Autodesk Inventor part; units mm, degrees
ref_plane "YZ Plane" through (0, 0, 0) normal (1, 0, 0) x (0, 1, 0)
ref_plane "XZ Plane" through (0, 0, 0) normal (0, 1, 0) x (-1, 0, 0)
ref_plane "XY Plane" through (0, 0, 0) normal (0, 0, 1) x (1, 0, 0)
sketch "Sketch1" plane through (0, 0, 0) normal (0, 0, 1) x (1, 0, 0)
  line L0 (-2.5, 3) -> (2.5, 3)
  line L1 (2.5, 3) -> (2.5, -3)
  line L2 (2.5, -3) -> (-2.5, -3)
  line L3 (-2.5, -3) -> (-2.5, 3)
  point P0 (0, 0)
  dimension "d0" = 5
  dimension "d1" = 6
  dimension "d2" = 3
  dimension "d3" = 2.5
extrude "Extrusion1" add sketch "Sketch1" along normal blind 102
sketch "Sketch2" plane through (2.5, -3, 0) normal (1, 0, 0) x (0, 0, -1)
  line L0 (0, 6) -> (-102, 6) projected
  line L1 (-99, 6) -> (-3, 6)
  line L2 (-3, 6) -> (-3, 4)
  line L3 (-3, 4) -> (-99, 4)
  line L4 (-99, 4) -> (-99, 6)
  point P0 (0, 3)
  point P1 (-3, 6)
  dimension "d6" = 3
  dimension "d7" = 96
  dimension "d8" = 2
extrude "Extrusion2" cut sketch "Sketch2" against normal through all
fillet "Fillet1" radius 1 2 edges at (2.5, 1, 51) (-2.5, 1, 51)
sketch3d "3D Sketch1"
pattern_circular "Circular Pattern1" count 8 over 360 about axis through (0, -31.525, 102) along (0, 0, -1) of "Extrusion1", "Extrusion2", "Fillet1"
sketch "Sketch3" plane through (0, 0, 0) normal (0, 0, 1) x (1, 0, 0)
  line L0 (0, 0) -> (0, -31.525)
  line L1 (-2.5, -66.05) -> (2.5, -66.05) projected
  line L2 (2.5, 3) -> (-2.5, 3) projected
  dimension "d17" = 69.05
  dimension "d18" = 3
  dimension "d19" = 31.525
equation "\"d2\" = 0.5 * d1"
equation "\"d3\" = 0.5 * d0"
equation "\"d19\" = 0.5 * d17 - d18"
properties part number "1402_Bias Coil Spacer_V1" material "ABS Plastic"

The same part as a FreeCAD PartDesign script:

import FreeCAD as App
import Part
import Sketcher

V = App.Vector


def edges_at(feature, points):
    """Names of the edges that pass closest to the given points."""
    edges = feature.Shape.Edges
    near = lambda p: min(range(len(edges)), key=lambda i: edges[i].distToShape(Part.Vertex(*p))[0])
    return sorted({f"Edge{near(p) + 1}" for p in points})

doc = App.newDocument("Part")
body = doc.addObject("PartDesign::Body", "Body")
body.AllowCompound = True

sketch1 = body.newObject("Sketcher::SketchObject", "Sketch")
sketch1.AttachmentSupport = (doc.getObject("XY_Plane"), [""])
sketch1.MapMode = "FlatFace"
sketch1.addGeometry([
    Part.LineSegment(V(2, 3, 0), V(-2, 3, 0)),
    Part.LineSegment(V(-2, 3, 0), V(-2, -3, 0)),
    Part.LineSegment(V(-2, -3, 0), V(2, -3, 0)),
    Part.LineSegment(V(2, -3, 0), V(2, 3, 0)),
], False)
sketch1.addConstraint([
    Sketcher.Constraint("Coincident", 0, 2, 1, 1),
    Sketcher.Constraint("Coincident", 1, 2, 2, 1),
    Sketcher.Constraint("Coincident", 2, 2, 3, 1),
    Sketcher.Constraint("Coincident", 3, 2, 0, 1),
    Sketcher.Constraint("Horizontal", 0),
    Sketcher.Constraint("Vertical", 1),
    Sketcher.Constraint("Horizontal", 2),
    Sketcher.Constraint("Vertical", 3),
    Sketcher.Constraint("Symmetric", 0, 2, 2, 2, -1, 1),
    Sketcher.Constraint("DistanceX", 0, 2, 0, 1, 5.0),
    Sketcher.Constraint("DistanceY", 1, 2, 1, 1, 6.0),
])
pad1 = body.newObject("PartDesign::Pad", "Pad")
pad1.Profile = sketch1
pad1.Length = 102

sketch2 = body.newObject("Sketcher::SketchObject", "Sketch001")
sketch2.AttachmentSupport = (doc.getObject("YZ_Plane"), [""])
sketch2.MapMode = "FlatFace"
sketch2.AttachmentOffset = App.Placement(V(0, 0, 2.5), App.Rotation())
sketch2.addGeometry([
    Part.LineSegment(V(1, 3, 0), V(3, 3, 0)),
    Part.LineSegment(V(3, 3, 0), V(3, 99, 0)),
    Part.LineSegment(V(3, 99, 0), V(1, 99, 0)),
    Part.LineSegment(V(1, 99, 0), V(1, 3, 0)),
], False)
sketch2.addConstraint([
    Sketcher.Constraint("Coincident", 0, 2, 1, 1),
    Sketcher.Constraint("Coincident", 1, 2, 2, 1),
    Sketcher.Constraint("Coincident", 2, 2, 3, 1),
    Sketcher.Constraint("Coincident", 3, 2, 0, 1),
    Sketcher.Constraint("Horizontal", 0),
    Sketcher.Constraint("Vertical", 1),
    Sketcher.Constraint("Horizontal", 2),
    Sketcher.Constraint("Vertical", 3),
    Sketcher.Constraint("DistanceX", 0, 1, 0, 2, 2.0),
    Sketcher.Constraint("DistanceY", 1, 1, 1, 2, 96.0),
    Sketcher.Constraint("DistanceX", -1, 1, 0, 2, 3.0),
    Sketcher.Constraint("DistanceY", -1, 1, 0, 2, 3.0),
])
pocket1 = body.newObject("PartDesign::Pocket", "Pocket")
pocket1.Profile = sketch2
pocket1.Type = "ThroughAll"
doc.recompute()

fillet = body.newObject("PartDesign::Fillet", "Fillet")
fillet.Base = (pocket1, edges_at(pocket1, [(2.5, 1, 51), (-2.5, 1, 51)]))
fillet.Radius = 1
doc.recompute()

datumline = body.newObject("PartDesign::Line", "DatumLine")
datumline.Placement = App.Placement(V(0, -31.525, 0), App.Rotation(V(0, 0, 1), V(0, 0, 1)))
polarpattern = body.newObject("PartDesign::PolarPattern", "PolarPattern")
polarpattern.Originals = [pad1, pocket1, fillet]
polarpattern.Axis = (datumline, [""])
polarpattern.Angle = 360
polarpattern.Occurrences = 8
body.Tip = polarpattern

doc.recompute()
